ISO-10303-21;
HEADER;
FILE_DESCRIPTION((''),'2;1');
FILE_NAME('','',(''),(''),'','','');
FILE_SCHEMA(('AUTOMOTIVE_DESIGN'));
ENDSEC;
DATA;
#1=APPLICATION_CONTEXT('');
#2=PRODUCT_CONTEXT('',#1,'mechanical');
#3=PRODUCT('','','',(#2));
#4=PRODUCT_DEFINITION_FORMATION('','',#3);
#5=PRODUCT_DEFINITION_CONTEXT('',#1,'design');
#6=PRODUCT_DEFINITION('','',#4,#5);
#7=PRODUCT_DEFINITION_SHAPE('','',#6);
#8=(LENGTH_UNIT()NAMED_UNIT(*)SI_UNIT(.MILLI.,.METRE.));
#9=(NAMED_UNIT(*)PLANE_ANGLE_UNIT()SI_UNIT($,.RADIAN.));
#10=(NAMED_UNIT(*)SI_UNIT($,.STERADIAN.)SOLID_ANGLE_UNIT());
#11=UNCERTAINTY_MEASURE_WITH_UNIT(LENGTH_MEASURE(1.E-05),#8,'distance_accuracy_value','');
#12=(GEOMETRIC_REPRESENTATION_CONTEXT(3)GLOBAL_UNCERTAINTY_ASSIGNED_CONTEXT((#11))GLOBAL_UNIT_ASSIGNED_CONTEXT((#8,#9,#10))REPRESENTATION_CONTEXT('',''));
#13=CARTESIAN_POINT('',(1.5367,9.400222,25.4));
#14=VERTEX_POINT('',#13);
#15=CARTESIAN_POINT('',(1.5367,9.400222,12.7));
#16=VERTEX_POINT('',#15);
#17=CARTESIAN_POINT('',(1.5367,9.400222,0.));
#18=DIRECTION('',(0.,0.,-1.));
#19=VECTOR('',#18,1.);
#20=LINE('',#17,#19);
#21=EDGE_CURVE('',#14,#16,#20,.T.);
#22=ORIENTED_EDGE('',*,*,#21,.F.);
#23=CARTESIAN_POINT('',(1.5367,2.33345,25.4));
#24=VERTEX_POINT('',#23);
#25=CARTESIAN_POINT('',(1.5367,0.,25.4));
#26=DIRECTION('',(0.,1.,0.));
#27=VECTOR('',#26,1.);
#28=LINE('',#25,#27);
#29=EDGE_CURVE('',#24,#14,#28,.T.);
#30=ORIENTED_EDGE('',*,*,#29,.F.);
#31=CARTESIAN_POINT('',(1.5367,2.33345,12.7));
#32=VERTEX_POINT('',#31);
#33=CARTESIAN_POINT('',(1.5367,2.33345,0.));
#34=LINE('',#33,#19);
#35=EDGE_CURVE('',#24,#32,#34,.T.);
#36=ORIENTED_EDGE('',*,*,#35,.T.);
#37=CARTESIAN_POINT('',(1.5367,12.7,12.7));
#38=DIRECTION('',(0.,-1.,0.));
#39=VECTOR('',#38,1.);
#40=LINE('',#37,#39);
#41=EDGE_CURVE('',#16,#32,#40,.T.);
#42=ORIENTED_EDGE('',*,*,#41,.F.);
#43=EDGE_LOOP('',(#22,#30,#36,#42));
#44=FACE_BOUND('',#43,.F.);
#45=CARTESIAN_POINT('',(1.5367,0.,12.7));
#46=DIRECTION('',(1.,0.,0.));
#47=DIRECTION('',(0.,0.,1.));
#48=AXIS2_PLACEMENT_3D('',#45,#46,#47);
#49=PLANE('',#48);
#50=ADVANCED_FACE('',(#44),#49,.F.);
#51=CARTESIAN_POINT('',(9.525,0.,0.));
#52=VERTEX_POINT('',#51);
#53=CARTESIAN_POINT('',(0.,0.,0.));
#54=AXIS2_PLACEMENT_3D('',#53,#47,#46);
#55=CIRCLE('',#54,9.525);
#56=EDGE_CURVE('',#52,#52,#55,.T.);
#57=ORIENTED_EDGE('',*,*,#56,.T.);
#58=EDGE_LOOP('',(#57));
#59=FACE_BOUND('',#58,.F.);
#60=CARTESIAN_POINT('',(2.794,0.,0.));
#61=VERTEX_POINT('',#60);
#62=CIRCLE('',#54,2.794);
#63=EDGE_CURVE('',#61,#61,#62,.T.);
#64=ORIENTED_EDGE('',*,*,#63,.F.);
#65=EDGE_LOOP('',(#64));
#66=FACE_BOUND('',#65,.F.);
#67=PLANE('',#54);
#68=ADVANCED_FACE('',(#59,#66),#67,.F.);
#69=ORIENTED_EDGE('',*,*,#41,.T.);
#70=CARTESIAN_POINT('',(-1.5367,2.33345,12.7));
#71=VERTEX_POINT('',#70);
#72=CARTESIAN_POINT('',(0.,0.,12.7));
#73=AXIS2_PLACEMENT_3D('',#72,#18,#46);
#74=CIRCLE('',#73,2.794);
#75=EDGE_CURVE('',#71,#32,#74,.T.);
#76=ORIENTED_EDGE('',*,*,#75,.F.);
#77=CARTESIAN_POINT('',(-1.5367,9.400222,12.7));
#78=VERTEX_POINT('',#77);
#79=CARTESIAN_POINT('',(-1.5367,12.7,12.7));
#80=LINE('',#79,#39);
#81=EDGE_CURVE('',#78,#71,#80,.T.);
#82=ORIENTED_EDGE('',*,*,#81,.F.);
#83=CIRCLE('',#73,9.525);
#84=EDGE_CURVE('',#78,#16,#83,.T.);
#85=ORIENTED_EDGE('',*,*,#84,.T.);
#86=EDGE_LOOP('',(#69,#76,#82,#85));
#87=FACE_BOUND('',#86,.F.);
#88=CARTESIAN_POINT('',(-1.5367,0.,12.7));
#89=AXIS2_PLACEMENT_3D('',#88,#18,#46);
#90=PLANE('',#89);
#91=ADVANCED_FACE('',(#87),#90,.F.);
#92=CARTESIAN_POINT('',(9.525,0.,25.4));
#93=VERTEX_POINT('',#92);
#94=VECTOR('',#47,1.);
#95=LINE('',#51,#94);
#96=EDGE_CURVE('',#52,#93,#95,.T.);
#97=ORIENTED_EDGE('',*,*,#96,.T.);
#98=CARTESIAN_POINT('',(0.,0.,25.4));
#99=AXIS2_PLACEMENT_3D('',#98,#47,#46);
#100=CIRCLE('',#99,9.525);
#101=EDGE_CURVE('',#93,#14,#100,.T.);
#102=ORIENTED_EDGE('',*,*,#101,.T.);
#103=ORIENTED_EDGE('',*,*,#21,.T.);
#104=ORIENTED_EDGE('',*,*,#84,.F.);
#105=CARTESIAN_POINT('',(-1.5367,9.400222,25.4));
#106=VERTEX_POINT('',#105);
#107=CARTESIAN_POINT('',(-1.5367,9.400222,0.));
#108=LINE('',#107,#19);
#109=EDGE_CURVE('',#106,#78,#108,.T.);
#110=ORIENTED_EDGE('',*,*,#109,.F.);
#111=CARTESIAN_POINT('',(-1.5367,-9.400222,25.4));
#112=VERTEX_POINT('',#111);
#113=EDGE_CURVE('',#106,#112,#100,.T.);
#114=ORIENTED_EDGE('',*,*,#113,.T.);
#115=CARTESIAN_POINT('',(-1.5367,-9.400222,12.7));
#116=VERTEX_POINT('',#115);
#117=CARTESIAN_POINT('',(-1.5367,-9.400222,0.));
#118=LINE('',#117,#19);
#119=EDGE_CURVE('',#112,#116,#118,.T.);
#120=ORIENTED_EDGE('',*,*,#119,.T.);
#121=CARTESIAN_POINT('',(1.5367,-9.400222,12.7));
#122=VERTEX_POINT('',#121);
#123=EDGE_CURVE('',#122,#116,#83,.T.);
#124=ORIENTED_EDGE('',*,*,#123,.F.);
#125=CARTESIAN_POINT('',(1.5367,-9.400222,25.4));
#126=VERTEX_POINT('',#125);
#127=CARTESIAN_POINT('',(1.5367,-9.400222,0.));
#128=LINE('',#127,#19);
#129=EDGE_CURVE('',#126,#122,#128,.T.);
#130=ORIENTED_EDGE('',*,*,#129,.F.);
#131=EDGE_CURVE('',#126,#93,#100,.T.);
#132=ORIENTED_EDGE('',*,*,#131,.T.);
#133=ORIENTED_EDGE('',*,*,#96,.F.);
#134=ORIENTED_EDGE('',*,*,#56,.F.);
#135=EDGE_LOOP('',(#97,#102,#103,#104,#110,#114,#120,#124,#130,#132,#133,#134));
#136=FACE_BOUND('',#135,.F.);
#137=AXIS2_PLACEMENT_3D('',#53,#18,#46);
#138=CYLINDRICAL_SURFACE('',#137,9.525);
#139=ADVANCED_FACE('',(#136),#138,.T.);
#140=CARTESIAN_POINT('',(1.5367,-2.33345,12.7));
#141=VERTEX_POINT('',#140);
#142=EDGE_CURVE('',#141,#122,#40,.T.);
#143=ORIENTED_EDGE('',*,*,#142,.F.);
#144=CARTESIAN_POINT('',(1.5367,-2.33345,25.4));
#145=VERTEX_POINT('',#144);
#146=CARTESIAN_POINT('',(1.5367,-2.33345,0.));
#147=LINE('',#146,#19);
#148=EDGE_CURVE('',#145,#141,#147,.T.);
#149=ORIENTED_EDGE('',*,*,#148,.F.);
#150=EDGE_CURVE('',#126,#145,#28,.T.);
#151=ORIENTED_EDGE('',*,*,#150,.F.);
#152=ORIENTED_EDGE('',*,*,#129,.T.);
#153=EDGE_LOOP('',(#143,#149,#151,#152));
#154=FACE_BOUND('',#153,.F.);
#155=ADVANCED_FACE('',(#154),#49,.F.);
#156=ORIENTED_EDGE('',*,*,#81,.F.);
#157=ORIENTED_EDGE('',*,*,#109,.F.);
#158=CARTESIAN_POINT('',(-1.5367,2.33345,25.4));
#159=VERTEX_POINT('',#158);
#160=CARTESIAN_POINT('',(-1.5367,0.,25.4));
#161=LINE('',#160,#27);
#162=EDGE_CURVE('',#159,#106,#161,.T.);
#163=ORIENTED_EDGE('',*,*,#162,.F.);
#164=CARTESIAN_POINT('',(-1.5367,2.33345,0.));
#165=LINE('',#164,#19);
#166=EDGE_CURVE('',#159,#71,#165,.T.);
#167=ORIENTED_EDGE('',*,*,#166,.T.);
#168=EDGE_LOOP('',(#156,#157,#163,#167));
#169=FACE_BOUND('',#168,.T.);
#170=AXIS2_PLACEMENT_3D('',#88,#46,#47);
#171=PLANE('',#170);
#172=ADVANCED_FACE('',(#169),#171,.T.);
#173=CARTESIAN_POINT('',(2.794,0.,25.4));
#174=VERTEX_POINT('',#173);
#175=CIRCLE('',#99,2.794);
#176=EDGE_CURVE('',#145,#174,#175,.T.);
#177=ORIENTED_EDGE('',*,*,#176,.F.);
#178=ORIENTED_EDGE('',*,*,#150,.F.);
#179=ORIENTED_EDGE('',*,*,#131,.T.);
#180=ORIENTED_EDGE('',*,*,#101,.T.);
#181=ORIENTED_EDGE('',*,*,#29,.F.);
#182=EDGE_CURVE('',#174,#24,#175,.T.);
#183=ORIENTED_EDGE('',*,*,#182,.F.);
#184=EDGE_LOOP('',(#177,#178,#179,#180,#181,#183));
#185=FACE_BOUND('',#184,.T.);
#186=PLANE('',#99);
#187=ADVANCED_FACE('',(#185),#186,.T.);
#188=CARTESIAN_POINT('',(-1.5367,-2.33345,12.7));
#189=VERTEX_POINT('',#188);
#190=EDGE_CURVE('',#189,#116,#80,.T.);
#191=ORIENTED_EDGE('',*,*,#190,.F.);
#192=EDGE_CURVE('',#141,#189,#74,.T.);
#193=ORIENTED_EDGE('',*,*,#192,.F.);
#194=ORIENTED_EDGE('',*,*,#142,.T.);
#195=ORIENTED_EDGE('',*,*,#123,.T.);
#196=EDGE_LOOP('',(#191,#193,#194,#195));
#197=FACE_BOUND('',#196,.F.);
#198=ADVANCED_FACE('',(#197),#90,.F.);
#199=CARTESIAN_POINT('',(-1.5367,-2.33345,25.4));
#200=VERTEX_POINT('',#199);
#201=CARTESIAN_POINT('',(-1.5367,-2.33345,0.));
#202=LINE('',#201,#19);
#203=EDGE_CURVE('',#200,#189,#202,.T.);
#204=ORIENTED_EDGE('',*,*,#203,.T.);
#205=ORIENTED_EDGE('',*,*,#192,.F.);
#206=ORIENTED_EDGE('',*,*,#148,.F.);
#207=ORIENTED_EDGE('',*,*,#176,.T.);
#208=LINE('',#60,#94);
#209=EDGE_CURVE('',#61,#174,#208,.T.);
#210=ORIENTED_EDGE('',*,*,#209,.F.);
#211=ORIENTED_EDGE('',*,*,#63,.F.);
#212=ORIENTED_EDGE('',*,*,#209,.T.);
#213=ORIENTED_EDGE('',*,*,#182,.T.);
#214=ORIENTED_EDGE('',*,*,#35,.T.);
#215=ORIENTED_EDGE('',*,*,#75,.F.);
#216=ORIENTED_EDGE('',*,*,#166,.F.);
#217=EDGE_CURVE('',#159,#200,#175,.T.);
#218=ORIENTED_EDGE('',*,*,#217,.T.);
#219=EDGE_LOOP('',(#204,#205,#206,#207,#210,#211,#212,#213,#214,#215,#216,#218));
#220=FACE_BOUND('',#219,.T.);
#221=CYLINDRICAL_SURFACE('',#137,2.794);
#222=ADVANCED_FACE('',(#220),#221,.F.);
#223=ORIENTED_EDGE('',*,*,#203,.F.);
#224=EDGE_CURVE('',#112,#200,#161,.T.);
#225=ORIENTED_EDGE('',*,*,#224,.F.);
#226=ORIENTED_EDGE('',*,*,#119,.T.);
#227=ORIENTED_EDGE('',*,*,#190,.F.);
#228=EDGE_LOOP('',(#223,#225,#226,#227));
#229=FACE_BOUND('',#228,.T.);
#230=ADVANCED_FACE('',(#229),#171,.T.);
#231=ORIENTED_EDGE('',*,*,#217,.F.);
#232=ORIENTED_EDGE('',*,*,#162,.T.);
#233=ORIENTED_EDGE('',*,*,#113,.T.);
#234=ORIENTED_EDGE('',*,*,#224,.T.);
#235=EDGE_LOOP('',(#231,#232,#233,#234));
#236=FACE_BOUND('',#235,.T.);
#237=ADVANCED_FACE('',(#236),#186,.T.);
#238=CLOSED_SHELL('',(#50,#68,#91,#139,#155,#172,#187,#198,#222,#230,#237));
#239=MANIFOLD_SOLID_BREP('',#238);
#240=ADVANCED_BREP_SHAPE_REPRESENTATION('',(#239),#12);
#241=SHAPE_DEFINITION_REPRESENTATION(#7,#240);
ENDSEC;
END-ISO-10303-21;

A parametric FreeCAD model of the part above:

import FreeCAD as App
import Part
import Sketcher
Q = App.Units.Quantity


def add_polygon(sketch, points):
    """Adds a closed chain of lines whose ends are joined by coincident constraints."""
    first, n = sketch.GeometryCount, len(points)
    for a, b in zip(points, points[1:] + points[:1]):
        sketch.addGeometry(Part.LineSegment(App.Vector(*a, 0), App.Vector(*b, 0)), False)
    for i in range(n):
        sketch.addConstraint(Sketcher.Constraint("Coincident", first + i, 2, first + (i + 1) % n, 1))

doc = App.newDocument("Part")
params = doc.addObject("Spreadsheet::Sheet", "Params")
for row, (alias, value) in enumerate([
    ("sketch1_diameter", "0.75 in"),
    ("pad1_length", "1 in"),
    ("sketch2_height", "1 in"),
    ("sketch2_width", "0.121 in"),
    ("pocket1_length", "1 in"),
    ("sketch3_diameter", "0.22 in"),
], start=1):
    params.set(f"A{row}", alias)
    params.set(f"B{row}", "=" + value)
    params.setAlias(f"B{row}", alias)

body = doc.addObject("PartDesign::Body", "Body")

sketch1 = body.newObject("Sketcher::SketchObject", "Sketch")
sketch1.AttachmentSupport = (doc.getObject("XY_Plane"), [""])
sketch1.MapMode = "FlatFace"
sketch1.addGeometry(Part.Circle(App.Vector(0, 0, 0), App.Vector(0, 0, 1), 10), False)
sketch1.addConstraint([
    Sketcher.Constraint("Coincident", 0, 3, -1, 1),
    Sketcher.Constraint("Diameter", 0, Q("0.75 in")),
])
sketch1.setExpression("Constraints[1]", "Params.sketch1_diameter")
pad1 = body.newObject("PartDesign::Pad", "Pad")
pad1.Profile = sketch1
pad1.setExpression("Length", "Params.pad1_length")

sketch2 = body.newObject("Sketcher::SketchObject", "Sketch001")
sketch2.AttachmentSupport = (doc.getObject("XZ_Plane"), [""])
sketch2.MapMode = "FlatFace"
add_polygon(sketch2, [(-1.5, 38.1), (-1.5, 12.7), (1.5, 12.7), (1.5, 38.1)])
sketch2.addConstraint([
    Sketcher.Constraint("Vertical", 0),
    Sketcher.Constraint("Horizontal", 1),
    Sketcher.Constraint("Vertical", 2),
    Sketcher.Constraint("Horizontal", 3),
    Sketcher.Constraint("DistanceY", 0, 2, 0, 1, Q("1 in")),
    Sketcher.Constraint("DistanceY", -1, 1, 0, 2, Q("0.5 in")),
    Sketcher.Constraint("DistanceX", 1, 1, 1, 2, Q("0.121 in")),
    Sketcher.Constraint("DistanceX", 0, 2, -1, 1, Q("0.0605 in")),
])
sketch2.setExpression("Constraints[8]", "Params.sketch2_height")
sketch2.setExpression("Constraints[10]", "Params.sketch2_width")
pocket1 = body.newObject("PartDesign::Pocket", "Pocket")
pocket1.Profile = sketch2
pocket1.setExpression("Length", "Params.pocket1_length")
pocket1.Midplane = True

sketch3 = body.newObject("Sketcher::SketchObject", "Sketch002")
sketch3.AttachmentSupport = (doc.getObject("XY_Plane"), [""])
sketch3.MapMode = "FlatFace"
sketch3.addGeometry(Part.Circle(App.Vector(0, 0, 0), App.Vector(0, 0, 1), 2.8), False)
sketch3.addConstraint([
    Sketcher.Constraint("Coincident", 0, 3, -1, 1),
    Sketcher.Constraint("Diameter", 0, Q("0.22 in")),
])
sketch3.setExpression("Constraints[1]", "Params.sketch3_diameter")
pocket2 = body.newObject("PartDesign::Pocket", "Pocket001")
pocket2.Profile = sketch3
pocket2.Type = "ThroughAll"
pocket2.Reversed = True

doc.recompute()
